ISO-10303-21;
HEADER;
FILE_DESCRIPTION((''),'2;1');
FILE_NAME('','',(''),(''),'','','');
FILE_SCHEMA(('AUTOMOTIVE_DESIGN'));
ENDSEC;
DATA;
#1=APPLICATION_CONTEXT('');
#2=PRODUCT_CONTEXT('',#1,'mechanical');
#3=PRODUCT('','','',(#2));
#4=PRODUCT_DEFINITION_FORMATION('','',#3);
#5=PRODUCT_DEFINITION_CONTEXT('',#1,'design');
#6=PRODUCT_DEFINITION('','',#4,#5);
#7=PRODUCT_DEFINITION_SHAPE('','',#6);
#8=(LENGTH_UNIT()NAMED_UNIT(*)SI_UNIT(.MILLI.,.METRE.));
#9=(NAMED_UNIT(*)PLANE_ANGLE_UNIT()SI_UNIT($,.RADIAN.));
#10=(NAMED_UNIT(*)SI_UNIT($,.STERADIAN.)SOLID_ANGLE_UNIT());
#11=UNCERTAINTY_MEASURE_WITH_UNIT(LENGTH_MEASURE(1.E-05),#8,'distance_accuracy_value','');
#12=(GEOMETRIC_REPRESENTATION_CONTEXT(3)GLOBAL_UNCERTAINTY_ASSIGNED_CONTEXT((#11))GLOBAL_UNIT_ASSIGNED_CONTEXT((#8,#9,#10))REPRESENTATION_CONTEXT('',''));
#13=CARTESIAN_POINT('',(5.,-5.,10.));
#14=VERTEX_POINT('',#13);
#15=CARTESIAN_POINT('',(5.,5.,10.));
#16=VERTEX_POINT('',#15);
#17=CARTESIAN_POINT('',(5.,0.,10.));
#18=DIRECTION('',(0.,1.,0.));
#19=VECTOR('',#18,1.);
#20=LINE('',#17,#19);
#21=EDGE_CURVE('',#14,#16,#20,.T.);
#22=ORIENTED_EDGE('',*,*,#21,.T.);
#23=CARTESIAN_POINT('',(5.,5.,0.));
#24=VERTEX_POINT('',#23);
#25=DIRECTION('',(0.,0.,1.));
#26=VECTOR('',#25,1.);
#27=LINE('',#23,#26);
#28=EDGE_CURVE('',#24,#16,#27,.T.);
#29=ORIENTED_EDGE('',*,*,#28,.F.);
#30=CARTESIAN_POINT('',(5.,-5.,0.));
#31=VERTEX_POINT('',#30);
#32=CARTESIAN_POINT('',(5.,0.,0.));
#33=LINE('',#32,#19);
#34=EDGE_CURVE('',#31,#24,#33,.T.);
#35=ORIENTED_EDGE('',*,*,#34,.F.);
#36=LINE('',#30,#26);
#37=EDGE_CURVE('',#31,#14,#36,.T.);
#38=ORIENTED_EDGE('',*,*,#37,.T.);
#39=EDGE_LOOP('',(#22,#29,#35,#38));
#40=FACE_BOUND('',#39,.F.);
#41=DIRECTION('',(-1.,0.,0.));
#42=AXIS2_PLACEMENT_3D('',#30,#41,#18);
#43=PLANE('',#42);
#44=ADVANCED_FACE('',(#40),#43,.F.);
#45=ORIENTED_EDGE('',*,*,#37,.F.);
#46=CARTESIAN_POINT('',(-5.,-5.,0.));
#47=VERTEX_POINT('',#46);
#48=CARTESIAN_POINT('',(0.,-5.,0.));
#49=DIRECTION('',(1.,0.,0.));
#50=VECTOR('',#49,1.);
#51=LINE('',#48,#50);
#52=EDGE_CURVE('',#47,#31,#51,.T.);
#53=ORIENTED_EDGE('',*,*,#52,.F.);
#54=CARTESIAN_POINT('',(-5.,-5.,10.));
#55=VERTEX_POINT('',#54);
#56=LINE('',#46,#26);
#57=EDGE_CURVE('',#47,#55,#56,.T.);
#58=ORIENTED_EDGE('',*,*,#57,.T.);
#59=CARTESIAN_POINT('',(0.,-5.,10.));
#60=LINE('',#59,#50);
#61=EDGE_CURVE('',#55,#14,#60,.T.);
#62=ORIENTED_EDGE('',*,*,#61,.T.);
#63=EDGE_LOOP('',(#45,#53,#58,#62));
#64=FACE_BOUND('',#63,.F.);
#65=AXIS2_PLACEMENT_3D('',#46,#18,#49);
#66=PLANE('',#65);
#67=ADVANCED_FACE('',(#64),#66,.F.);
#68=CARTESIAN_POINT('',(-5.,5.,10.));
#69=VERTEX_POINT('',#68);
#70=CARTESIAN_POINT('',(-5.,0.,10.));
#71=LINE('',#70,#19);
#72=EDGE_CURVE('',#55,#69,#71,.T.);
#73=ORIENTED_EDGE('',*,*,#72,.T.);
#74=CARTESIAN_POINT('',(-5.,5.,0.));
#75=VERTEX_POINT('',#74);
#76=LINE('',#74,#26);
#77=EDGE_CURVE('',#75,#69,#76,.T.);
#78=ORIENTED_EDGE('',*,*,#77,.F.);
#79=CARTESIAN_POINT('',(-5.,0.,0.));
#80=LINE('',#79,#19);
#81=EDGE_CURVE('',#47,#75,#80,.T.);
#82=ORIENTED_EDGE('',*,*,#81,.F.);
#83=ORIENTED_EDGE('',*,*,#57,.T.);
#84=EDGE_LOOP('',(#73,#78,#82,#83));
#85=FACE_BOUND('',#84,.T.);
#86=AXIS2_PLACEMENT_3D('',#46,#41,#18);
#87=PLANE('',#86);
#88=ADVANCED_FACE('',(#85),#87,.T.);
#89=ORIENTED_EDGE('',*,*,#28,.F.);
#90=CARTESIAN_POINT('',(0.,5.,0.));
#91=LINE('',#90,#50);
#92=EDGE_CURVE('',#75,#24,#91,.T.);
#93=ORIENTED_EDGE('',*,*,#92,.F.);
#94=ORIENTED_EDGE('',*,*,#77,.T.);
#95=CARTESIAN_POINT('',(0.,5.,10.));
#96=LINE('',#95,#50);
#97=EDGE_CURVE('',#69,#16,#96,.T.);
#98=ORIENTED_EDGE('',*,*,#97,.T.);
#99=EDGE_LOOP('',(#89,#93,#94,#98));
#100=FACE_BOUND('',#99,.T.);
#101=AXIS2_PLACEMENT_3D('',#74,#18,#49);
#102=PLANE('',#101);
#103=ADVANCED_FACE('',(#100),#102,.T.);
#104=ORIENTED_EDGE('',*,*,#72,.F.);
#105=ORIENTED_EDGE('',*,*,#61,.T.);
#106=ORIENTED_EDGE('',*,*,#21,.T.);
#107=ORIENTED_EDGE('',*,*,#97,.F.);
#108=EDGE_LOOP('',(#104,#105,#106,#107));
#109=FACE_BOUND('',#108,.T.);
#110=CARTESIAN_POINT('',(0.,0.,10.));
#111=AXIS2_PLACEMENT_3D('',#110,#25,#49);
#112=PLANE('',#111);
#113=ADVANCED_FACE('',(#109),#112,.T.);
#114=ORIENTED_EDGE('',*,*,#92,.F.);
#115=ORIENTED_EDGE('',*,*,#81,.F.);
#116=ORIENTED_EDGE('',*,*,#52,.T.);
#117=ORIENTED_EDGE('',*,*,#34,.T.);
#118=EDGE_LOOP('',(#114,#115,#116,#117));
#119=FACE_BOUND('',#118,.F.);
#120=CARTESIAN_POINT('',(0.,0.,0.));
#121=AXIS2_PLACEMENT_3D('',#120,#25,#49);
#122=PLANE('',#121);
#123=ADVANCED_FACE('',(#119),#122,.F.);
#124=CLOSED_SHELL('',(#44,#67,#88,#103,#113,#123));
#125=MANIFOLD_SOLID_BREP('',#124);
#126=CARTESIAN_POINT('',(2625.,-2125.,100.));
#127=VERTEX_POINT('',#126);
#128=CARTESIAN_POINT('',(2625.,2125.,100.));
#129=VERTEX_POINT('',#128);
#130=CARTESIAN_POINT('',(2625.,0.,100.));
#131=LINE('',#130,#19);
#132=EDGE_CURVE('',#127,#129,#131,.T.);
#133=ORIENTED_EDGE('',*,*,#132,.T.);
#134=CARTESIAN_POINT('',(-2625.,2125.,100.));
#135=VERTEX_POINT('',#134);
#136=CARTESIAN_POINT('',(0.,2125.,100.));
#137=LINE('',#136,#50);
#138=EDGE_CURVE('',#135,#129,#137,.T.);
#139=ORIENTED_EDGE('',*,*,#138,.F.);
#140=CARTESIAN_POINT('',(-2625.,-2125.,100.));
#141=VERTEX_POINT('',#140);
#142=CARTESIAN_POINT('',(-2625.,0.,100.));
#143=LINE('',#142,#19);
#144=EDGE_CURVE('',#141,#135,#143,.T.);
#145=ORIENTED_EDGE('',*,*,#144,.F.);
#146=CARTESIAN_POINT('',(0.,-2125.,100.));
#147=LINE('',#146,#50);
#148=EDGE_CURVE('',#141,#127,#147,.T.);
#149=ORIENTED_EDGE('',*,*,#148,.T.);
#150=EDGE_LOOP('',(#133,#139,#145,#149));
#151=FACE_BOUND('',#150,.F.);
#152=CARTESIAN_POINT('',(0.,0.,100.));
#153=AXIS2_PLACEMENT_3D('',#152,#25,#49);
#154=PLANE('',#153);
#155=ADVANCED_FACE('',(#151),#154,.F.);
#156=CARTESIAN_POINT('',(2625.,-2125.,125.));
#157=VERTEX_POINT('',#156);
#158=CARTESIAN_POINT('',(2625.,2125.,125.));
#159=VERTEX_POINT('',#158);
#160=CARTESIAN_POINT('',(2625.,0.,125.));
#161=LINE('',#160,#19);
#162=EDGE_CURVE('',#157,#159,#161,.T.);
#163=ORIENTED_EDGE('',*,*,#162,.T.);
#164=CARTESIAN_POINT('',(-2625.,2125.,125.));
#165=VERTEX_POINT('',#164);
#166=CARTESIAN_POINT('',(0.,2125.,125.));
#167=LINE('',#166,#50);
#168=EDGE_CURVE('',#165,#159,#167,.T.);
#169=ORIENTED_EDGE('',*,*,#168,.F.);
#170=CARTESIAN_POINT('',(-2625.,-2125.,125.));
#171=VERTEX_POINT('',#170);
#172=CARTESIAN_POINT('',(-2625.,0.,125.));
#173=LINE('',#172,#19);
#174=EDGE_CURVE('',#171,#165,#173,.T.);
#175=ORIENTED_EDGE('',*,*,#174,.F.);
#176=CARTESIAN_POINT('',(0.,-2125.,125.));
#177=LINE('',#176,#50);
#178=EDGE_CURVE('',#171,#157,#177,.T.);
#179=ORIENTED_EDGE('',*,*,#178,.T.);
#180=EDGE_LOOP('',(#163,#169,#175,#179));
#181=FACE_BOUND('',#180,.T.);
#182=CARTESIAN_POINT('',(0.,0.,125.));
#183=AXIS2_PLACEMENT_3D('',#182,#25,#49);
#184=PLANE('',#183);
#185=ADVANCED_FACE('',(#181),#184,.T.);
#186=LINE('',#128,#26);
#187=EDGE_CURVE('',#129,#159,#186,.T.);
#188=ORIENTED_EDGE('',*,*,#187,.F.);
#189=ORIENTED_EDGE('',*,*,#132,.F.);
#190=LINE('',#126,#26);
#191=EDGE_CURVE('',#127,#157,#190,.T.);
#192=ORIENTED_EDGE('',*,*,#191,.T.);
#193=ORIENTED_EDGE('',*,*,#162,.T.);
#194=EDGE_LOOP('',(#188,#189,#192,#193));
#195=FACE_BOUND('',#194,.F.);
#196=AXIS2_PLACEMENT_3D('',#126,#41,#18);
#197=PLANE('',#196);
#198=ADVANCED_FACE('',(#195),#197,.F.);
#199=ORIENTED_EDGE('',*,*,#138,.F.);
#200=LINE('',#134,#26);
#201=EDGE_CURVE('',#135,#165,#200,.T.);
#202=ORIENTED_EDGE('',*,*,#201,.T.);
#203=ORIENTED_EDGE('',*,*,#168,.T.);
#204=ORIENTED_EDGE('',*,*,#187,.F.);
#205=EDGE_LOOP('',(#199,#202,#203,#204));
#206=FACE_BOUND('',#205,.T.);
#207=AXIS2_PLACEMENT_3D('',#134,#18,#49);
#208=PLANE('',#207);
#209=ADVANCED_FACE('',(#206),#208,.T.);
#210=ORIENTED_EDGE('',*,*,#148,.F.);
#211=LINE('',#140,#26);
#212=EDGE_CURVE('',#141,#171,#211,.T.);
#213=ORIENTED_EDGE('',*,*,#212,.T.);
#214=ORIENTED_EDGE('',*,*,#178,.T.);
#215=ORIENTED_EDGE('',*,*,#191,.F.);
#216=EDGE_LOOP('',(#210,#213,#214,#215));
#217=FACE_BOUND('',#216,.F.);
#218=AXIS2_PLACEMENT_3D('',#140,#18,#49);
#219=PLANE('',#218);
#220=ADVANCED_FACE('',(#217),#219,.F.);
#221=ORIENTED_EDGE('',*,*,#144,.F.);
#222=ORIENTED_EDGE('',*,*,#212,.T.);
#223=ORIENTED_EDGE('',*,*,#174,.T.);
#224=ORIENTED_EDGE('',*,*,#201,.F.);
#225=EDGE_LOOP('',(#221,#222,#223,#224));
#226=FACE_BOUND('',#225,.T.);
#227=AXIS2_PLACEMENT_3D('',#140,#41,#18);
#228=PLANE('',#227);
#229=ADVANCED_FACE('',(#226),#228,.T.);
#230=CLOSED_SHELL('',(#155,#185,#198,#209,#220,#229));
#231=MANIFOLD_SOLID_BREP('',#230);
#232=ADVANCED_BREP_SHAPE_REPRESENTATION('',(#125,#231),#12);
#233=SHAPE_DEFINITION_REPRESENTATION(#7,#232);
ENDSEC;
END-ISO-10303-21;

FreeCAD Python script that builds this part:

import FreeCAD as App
import Part
import Sketcher

V = App.Vector

doc = App.newDocument("Part")
body = doc.addObject("PartDesign::Body", "Body")

sketch1 = body.newObject("Sketcher::SketchObject", "Sketch")
sketch1.AttachmentSupport = (doc.getObject("XY_Plane"), [""])
sketch1.MapMode = "FlatFace"
sketch1.addGeometry([
    Part.LineSegment(V(-5, 5, 0), V(-5, -5, 0)),
    Part.LineSegment(V(-5, -5, 0), V(5, -5, 0)),
    Part.LineSegment(V(5, -5, 0), V(5, 5, 0)),
    Part.LineSegment(V(5, 5, 0), V(-5, 5, 0)),
], False)
sketch1.addConstraint([
    Sketcher.Constraint("Coincident", 0, 2, 1, 1),
    Sketcher.Constraint("Coincident", 1, 2, 2, 1),
    Sketcher.Constraint("Coincident", 2, 2, 3, 1),
    Sketcher.Constraint("Coincident", 3, 2, 0, 1),
    Sketcher.Constraint("Vertical", 0),
    Sketcher.Constraint("Horizontal", 1),
    Sketcher.Constraint("Vertical", 2),
    Sketcher.Constraint("Horizontal", 3),
    Sketcher.Constraint("Symmetric", 0, 2, 2, 2, -1, 1),
    Sketcher.Constraint("Equal", 3, 0),
    Sketcher.Constraint("DistanceX", 1, 1, 1, 2, 10.0),
])
pad1 = body.newObject("PartDesign::Pad", "Pad")
pad1.Profile = sketch1
pad1.Length = 10
body2 = doc.addObject("PartDesign::Body", "Body001")

sketch2 = body2.newObject("Sketcher::SketchObject", "Sketch001")
sketch2.AttachmentSupport = (doc.getObject("XY_Plane001"), [""])
sketch2.MapMode = "FlatFace"
sketch2.AttachmentOffset = App.Placement(V(0, 0, 100), App.Rotation())
sketch2.addGeometry([
    Part.LineSegment(V(-2625, 2125, 0), V(-2625, -2125, 0)),
    Part.LineSegment(V(-2625, -2125, 0), V(2625, -2125, 0)),
    Part.LineSegment(V(2625, -2125, 0), V(2625, 2125, 0)),
    Part.LineSegment(V(2625, 2125, 0), V(-2625, 2125, 0)),
], False)
sketch2.addConstraint([
    Sketcher.Constraint("Coincident", 0, 2, 1, 1),
    Sketcher.Constraint("Coincident", 1, 2, 2, 1),
    Sketcher.Constraint("Coincident", 2, 2, 3, 1),
    Sketcher.Constraint("Coincident", 3, 2, 0, 1),
    Sketcher.Constraint("Vertical", 0),
    Sketcher.Constraint("Horizontal", 1),
    Sketcher.Constraint("Vertical", 2),
    Sketcher.Constraint("Horizontal", 3),
    Sketcher.Constraint("Symmetric", 0, 2, 2, 2, -1, 1),
    Sketcher.Constraint("DistanceX", 1, 1, 1, 2, 5250.0),
    Sketcher.Constraint("DistanceY", 0, 2, 0, 1, 4250.0),
])
pad2 = body2.newObject("PartDesign::Pad", "Pad001")
pad2.Profile = sketch2
pad2.Length = 25

doc.recompute()
